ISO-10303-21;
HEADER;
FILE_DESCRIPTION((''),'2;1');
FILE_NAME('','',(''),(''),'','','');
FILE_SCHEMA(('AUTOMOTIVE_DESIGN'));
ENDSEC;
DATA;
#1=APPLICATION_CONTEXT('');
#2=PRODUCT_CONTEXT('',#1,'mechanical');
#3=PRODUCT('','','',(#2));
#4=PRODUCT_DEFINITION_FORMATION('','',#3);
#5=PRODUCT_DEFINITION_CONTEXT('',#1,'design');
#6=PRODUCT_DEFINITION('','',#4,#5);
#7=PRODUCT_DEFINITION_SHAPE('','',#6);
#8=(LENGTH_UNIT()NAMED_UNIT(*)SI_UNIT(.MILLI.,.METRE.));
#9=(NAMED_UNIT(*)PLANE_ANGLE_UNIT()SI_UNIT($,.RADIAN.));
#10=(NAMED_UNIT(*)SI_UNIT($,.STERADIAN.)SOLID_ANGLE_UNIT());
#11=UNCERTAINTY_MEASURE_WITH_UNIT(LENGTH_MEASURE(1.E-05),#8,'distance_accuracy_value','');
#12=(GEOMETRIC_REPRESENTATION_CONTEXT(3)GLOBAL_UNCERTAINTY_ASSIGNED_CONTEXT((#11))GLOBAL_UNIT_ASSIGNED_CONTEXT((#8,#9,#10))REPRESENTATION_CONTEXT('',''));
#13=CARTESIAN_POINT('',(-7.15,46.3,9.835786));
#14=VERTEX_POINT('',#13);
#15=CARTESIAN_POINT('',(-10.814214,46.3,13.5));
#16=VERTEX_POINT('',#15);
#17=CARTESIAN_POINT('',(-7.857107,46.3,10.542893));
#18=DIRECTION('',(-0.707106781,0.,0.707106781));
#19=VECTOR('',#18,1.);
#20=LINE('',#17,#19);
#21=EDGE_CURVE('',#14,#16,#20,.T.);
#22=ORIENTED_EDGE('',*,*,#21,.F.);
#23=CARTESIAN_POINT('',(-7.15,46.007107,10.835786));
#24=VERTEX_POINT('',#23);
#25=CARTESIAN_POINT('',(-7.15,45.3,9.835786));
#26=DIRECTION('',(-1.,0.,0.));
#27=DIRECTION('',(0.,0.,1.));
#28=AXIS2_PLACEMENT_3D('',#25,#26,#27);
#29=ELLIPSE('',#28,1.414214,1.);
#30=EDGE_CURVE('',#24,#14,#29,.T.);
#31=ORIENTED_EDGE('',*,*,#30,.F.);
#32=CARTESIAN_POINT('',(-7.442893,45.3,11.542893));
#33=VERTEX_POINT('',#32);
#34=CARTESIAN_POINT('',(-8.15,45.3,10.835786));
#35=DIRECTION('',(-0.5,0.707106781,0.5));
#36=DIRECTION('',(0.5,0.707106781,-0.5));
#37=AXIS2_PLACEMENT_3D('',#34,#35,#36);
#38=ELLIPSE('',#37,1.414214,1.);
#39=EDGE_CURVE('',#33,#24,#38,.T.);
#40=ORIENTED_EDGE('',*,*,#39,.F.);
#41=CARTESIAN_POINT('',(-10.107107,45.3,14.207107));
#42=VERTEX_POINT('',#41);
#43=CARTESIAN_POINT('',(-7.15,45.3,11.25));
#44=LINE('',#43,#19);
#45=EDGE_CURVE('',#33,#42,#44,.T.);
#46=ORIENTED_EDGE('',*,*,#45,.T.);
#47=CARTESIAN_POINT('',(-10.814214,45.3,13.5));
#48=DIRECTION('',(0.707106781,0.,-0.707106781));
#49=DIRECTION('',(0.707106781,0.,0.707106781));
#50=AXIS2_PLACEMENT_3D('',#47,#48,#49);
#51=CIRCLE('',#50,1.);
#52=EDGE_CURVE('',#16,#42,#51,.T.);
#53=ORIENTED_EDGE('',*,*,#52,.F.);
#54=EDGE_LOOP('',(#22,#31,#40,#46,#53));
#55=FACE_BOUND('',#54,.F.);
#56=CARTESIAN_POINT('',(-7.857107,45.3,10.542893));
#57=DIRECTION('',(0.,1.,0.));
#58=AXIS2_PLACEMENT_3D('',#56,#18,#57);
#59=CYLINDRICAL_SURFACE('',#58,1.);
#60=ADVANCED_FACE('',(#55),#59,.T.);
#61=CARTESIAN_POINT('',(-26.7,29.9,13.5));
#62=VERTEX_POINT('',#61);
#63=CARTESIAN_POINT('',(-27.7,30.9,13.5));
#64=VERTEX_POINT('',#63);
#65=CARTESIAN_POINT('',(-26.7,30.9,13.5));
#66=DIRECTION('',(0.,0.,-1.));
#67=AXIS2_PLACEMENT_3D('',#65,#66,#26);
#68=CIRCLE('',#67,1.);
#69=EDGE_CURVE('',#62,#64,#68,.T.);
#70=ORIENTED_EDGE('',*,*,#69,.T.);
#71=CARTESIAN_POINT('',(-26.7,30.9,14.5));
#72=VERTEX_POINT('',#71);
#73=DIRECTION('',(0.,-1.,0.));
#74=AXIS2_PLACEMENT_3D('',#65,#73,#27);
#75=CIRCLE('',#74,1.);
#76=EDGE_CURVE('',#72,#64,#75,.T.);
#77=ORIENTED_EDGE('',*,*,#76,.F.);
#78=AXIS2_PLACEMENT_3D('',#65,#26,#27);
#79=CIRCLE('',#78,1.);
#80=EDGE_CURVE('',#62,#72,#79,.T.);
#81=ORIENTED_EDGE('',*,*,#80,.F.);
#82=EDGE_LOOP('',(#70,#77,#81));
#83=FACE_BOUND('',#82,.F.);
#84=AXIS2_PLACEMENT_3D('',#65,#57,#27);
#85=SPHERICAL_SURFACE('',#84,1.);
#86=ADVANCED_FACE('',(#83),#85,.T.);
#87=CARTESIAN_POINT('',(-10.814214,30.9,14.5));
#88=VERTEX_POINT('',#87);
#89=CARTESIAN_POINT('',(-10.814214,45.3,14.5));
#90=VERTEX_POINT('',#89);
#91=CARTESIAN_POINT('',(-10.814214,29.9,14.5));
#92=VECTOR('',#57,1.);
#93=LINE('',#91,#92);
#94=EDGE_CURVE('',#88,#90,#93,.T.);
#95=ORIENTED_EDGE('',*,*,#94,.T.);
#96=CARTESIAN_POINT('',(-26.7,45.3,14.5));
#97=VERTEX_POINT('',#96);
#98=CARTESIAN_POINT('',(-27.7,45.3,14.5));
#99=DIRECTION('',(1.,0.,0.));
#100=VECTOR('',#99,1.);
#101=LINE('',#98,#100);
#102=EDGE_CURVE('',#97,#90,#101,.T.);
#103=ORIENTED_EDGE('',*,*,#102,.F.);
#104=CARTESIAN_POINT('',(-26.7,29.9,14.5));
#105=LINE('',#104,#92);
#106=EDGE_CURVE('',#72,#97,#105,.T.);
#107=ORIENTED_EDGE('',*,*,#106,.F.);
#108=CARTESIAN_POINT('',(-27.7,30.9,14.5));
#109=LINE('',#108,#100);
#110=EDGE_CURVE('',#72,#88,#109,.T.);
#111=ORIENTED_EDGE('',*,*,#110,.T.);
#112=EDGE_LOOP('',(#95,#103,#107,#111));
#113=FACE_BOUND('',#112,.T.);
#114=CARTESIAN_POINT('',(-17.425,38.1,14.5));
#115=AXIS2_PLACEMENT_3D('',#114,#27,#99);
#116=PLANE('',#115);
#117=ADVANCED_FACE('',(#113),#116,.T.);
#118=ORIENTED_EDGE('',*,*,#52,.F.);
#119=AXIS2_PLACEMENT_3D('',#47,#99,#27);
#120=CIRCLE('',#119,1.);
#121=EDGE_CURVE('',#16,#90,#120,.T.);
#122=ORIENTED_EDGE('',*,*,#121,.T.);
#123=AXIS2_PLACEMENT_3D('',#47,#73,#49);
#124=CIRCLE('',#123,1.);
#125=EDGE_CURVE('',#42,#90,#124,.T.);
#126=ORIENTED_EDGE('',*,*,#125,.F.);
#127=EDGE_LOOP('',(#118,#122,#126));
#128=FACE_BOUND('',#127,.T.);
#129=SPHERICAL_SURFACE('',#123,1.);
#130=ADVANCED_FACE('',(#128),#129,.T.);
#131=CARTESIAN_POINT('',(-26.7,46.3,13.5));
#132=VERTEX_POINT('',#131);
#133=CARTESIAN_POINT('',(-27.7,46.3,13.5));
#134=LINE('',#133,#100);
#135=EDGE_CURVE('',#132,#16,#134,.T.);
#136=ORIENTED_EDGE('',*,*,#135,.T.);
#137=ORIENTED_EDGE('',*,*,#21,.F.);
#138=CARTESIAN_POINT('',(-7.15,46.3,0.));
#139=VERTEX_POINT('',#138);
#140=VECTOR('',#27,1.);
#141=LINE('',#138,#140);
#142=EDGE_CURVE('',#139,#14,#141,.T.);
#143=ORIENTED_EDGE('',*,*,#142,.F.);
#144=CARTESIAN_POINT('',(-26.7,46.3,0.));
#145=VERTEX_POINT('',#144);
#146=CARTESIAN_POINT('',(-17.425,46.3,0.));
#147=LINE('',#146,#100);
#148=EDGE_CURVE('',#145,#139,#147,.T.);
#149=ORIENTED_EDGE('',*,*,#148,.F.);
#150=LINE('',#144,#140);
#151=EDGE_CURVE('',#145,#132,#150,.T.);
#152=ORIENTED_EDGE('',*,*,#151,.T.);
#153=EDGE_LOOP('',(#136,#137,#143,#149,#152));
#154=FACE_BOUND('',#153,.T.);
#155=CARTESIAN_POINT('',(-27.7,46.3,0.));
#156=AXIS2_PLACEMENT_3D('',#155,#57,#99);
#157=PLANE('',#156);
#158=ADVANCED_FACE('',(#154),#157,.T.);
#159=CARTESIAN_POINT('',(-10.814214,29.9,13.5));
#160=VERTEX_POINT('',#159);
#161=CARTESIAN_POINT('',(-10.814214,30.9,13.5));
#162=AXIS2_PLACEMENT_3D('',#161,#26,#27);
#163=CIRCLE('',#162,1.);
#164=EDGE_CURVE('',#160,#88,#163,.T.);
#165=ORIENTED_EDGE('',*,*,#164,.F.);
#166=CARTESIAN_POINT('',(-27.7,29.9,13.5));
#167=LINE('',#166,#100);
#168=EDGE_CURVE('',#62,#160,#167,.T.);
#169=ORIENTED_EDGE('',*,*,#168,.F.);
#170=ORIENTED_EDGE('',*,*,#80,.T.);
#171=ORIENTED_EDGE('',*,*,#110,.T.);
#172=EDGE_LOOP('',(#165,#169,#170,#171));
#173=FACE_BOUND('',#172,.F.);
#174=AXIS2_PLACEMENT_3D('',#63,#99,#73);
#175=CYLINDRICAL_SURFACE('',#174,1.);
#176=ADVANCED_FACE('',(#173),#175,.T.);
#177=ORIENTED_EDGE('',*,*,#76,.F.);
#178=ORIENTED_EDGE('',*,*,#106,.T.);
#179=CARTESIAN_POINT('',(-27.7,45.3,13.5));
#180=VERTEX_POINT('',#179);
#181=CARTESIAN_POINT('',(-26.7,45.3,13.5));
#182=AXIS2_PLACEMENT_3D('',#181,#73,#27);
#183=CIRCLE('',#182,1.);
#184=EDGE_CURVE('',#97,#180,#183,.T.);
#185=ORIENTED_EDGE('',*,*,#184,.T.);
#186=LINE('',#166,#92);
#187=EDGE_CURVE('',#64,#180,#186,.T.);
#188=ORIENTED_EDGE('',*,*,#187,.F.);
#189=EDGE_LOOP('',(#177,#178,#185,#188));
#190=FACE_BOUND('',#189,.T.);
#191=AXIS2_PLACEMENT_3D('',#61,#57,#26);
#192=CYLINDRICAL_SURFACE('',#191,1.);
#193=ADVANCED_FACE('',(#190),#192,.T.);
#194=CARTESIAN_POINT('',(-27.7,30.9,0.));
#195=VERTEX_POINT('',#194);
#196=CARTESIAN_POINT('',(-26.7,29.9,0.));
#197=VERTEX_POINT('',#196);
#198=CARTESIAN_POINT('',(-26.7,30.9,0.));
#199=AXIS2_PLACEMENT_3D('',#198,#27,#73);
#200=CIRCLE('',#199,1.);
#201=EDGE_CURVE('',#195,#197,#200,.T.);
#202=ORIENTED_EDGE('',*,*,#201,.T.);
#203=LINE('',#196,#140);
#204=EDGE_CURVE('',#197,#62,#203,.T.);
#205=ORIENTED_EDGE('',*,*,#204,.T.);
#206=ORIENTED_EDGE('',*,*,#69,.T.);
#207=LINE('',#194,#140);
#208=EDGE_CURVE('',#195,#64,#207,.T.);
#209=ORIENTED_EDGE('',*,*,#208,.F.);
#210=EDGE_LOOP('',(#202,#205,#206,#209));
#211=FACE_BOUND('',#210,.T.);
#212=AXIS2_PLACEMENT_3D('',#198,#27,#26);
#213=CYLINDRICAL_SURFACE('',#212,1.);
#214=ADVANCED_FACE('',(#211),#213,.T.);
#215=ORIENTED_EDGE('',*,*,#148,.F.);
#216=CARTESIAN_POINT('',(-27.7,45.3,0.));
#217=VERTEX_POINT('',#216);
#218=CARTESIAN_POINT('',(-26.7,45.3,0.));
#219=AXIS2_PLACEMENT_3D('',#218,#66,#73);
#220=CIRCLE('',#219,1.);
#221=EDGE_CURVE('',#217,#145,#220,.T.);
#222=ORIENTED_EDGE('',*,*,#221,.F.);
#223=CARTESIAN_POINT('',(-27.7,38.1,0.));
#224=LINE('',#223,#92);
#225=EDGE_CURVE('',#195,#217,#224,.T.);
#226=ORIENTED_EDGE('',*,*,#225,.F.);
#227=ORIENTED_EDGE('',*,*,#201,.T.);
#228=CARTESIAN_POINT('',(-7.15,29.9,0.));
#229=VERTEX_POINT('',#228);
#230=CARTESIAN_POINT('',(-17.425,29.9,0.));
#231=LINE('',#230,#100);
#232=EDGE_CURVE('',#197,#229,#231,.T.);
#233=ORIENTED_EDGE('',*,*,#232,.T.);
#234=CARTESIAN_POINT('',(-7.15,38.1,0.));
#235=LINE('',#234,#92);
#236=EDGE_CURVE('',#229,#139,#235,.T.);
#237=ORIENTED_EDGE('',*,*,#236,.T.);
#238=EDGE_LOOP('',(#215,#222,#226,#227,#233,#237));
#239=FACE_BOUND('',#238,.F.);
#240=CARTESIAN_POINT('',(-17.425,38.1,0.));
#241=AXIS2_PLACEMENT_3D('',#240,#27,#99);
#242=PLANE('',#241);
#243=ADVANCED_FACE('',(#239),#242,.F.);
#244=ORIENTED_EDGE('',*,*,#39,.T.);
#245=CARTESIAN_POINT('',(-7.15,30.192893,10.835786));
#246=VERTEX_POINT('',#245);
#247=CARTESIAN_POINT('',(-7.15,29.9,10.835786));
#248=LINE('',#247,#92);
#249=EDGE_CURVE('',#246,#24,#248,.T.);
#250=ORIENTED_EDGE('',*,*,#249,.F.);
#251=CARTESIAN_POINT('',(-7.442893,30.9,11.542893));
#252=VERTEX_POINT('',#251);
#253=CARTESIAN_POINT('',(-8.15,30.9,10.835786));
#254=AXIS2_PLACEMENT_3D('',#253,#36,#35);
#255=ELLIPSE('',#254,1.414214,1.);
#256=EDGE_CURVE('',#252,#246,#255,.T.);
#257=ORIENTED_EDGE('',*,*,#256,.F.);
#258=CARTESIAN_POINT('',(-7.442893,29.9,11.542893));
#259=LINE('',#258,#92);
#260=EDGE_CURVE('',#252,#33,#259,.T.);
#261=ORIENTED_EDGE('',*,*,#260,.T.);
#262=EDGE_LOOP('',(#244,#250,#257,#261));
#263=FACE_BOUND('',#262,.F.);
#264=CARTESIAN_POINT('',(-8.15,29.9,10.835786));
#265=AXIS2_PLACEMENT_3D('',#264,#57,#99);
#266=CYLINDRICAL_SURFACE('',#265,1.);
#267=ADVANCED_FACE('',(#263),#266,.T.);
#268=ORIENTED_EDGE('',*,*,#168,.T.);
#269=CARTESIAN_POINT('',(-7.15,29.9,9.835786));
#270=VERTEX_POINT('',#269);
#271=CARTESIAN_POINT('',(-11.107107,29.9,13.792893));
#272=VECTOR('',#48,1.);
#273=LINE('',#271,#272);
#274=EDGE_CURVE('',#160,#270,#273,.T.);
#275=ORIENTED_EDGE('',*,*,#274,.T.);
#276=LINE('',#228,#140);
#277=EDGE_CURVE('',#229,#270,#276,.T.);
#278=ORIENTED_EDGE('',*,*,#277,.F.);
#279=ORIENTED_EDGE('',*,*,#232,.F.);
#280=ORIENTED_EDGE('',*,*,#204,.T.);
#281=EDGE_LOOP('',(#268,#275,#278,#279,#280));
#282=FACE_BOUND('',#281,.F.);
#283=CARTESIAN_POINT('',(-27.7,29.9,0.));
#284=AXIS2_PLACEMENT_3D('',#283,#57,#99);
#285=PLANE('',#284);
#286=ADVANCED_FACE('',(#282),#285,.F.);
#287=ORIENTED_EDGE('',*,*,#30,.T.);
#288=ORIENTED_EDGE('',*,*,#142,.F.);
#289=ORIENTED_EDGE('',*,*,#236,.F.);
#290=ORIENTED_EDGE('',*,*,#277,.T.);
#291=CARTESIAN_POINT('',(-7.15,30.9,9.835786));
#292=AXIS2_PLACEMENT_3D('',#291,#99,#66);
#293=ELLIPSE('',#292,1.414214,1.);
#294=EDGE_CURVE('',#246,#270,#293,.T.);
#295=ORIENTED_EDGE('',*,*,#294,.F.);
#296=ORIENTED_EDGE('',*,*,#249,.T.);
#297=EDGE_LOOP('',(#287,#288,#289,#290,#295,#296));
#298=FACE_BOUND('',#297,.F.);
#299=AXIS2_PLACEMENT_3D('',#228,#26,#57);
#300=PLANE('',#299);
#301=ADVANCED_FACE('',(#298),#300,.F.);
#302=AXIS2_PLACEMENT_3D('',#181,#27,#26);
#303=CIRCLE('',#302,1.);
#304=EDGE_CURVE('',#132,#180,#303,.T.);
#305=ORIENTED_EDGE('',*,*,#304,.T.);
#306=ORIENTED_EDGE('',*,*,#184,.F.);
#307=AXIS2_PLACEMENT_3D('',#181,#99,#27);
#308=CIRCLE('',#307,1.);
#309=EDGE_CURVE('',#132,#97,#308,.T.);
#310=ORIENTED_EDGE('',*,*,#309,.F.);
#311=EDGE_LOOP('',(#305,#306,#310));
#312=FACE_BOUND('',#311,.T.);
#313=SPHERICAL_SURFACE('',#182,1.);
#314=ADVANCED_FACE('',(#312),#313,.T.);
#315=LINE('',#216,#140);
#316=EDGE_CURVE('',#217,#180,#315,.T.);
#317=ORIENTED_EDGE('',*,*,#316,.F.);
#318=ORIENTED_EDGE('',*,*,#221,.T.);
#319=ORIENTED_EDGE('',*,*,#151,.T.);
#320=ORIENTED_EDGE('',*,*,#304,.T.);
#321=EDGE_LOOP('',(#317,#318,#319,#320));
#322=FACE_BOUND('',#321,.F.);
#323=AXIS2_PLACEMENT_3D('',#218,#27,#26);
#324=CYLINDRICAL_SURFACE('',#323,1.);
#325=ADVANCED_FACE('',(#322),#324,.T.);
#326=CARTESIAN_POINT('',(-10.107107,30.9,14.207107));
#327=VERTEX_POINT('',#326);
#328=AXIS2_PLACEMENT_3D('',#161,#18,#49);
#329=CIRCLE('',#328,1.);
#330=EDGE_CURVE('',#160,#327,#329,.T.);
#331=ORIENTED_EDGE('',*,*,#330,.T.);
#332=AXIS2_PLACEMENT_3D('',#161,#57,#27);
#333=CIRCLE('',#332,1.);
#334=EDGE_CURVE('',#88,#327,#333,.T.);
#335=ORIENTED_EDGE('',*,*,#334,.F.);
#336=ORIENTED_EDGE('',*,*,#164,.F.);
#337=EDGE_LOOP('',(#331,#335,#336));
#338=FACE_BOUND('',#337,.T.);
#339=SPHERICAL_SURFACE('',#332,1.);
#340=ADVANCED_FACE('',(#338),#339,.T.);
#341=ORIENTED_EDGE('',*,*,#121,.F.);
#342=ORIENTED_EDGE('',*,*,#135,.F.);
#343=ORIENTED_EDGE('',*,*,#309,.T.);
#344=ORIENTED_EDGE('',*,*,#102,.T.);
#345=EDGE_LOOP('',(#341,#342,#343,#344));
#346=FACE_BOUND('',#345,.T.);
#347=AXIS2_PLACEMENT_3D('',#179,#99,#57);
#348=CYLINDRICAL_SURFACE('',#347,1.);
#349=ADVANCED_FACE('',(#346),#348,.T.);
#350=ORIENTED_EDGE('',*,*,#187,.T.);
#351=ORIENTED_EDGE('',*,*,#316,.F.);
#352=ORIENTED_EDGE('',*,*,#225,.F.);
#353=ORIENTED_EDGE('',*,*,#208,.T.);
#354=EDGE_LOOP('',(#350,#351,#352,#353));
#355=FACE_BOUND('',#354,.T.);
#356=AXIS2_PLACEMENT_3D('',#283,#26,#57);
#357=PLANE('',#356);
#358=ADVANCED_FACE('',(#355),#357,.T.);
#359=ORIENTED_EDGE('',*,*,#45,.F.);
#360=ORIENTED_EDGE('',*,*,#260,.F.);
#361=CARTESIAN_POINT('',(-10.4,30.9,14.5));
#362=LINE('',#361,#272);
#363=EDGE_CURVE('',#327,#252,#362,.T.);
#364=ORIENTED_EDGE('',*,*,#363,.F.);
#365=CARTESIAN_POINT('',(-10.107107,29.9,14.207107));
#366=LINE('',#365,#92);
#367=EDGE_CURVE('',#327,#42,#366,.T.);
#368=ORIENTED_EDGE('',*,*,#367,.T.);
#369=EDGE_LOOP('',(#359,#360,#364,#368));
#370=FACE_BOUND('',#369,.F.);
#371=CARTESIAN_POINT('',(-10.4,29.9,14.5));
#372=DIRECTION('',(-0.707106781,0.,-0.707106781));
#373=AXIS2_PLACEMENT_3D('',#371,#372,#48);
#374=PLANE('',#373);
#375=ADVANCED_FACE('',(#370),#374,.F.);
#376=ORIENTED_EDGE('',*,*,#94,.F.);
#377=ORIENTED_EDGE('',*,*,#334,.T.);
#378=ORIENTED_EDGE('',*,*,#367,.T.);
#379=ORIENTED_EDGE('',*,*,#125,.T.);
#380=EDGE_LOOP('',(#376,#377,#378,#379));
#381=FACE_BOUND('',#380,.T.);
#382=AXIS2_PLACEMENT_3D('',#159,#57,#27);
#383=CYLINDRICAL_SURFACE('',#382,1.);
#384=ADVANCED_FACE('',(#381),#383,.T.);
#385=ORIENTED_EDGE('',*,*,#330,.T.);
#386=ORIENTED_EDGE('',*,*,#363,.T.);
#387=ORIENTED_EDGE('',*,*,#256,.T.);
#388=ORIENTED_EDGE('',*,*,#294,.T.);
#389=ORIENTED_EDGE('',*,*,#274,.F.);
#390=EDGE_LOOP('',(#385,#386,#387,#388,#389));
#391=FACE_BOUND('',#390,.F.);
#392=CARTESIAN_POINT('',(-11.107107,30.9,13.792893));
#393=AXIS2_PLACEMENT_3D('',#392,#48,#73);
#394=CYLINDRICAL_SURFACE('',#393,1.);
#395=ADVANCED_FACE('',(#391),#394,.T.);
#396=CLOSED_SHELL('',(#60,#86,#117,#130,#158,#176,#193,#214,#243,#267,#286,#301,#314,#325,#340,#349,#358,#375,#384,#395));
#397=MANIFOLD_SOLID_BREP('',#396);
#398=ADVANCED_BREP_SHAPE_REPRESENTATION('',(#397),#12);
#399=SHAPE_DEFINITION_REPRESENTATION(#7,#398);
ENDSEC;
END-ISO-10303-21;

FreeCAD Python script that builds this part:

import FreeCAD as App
import Part
import Sketcher
from FreeCAD import Vector
Q = App.Units.Quantity


def edges_at(feature, points):
    """Names of the edges that pass closest to the given points."""
    edges = feature.Shape.Edges
    near = lambda p: min(range(len(edges)), key=lambda i: edges[i].distToShape(Part.Vertex(*p))[0])
    return sorted({f"Edge{near(p) + 1}" for p in points})


def add_polygon(sketch, points):
    """Adds a closed chain of lines whose ends are joined by coincident constraints."""
    first, n = sketch.GeometryCount, len(points)
    for a, b in zip(points, points[1:] + points[:1]):
        sketch.addGeometry(Part.LineSegment(App.Vector(*a, 0), App.Vector(*b, 0)), False)
    for i in range(n):
        sketch.addConstraint(Sketcher.Constraint("Coincident", first + i, 2, first + (i + 1) % n, 1))

doc = App.newDocument("Part")
body = doc.addObject("PartDesign::Body", "Body")

sketch1 = body.newObject("Sketcher::SketchObject", "Sketch")
sketch1.AttachmentSupport = (doc.getObject("XY_Plane"), [""])
sketch1.MapMode = "FlatFace"
add_polygon(sketch1, [(-28, 46), (-28, 30), (-7, 30), (-7, 46)])
sketch1.addConstraint(Sketcher.Constraint("Vertical", 0))
sketch1.addConstraint(Sketcher.Constraint("Horizontal", 1))
sketch1.addConstraint(Sketcher.Constraint("Vertical", 2))
sketch1.addConstraint(Sketcher.Constraint("Horizontal", 3))
sketch1.addConstraint(Sketcher.Constraint("DistanceY", 0, 2, 0, 1, Q("16.4 mm")))
sketch1.addConstraint(Sketcher.Constraint("DistanceX", 1, 1, 1, 2, Q("20.55 mm")))
sketch1.addConstraint(Sketcher.Constraint("DistanceX", 0, 2, -1, 1, Q("27.7 mm")))
sketch1.addConstraint(Sketcher.Constraint("DistanceY", -1, 1, 0, 2, Q("29.9 mm")))
pad1 = body.newObject("PartDesign::Pad", "Pad")
pad1.Profile = sketch1
pad1.Length = 14.5

sketch2 = body.newObject("Sketcher::SketchObject", "Sketch001")
sketch2.AttachmentSupport = (doc.getObject("XZ_Plane"), [""])
sketch2.MapMode = "FlatFace"
sketch2.AttachmentOffset = App.Placement(Vector(0, 0, -29.9), App.Rotation())
add_polygon(sketch2, [(-32, 18), (-32, -2), (-2, -2), (-2, 18)])
add_polygon(sketch2, [(-27.7, 0), (-27.7, 14.5), (-10.4, 14.5), (-7.2, 11.2), (-7.2, 0)])
sketch2.addConstraint(Sketcher.Constraint("Vertical", 0))
sketch2.addConstraint(Sketcher.Constraint("Horizontal", 1))
sketch2.addConstraint(Sketcher.Constraint("Vertical", 2))
sketch2.addConstraint(Sketcher.Constraint("Horizontal", 3))
sketch2.addConstraint(Sketcher.Constraint("Vertical", 4))
sketch2.addConstraint(Sketcher.Constraint("Horizontal", 5))
sketch2.addConstraint(Sketcher.Constraint("Vertical", 7))
sketch2.addConstraint(Sketcher.Constraint("Horizontal", 8))
sketch2.addConstraint(Sketcher.Constraint("PointOnObject", 7, 2, -1))
sketch2.addConstraint(Sketcher.Constraint("DistanceX", 1, 1, 1, 2, Q("30 mm")))
sketch2.addConstraint(Sketcher.Constraint("DistanceY", 0, 2, 0, 1, Q("20 mm")))
sketch2.addConstraint(Sketcher.Constraint("Angle", 6, Q("-45 deg")))
sketch2.addConstraint(Sketcher.Constraint("DistanceX", 5, 1, 5, 2, Q("17.3 mm")))
sketch2.addConstraint(Sketcher.Constraint("DistanceY", 4, 1, 4, 2, Q("14.5 mm")))
sketch2.addConstraint(Sketcher.Constraint("DistanceX", 0, 2, -1, 1, Q("32 mm")))
sketch2.addConstraint(Sketcher.Constraint("DistanceY", 0, 2, -1, 1, Q("2 mm")))
sketch2.addConstraint(Sketcher.Constraint("DistanceX", 8, 2, 8, 1, Q("20.55 mm")))
sketch2.addConstraint(Sketcher.Constraint("DistanceX", 4, 2, -1, 1, Q("27.7 mm")))
pocket1 = body.newObject("PartDesign::Pocket", "Pocket")
pocket1.Profile = sketch2
pocket1.Type = "ThroughAll"
doc.recompute()

fillet = body.newObject("PartDesign::Fillet", "Fillet")
fillet.Base = (pocket1, edges_at(pocket1, [
    (-27.7, 38.1, 14.5),
    (-19.05, 46.3, 14.5),
    (-10.4, 38.1, 14.5),
    (-19.05, 29.9, 14.5),
    (-8.775, 29.9, 12.875),
    (-8.775, 46.3, 12.875),
    (-7.15, 38.1, 11.25),
    (-27.7, 29.9, 7.25),
    (-27.7, 46.3, 7.25),
]))
fillet.Radius = 1

doc.recompute()
